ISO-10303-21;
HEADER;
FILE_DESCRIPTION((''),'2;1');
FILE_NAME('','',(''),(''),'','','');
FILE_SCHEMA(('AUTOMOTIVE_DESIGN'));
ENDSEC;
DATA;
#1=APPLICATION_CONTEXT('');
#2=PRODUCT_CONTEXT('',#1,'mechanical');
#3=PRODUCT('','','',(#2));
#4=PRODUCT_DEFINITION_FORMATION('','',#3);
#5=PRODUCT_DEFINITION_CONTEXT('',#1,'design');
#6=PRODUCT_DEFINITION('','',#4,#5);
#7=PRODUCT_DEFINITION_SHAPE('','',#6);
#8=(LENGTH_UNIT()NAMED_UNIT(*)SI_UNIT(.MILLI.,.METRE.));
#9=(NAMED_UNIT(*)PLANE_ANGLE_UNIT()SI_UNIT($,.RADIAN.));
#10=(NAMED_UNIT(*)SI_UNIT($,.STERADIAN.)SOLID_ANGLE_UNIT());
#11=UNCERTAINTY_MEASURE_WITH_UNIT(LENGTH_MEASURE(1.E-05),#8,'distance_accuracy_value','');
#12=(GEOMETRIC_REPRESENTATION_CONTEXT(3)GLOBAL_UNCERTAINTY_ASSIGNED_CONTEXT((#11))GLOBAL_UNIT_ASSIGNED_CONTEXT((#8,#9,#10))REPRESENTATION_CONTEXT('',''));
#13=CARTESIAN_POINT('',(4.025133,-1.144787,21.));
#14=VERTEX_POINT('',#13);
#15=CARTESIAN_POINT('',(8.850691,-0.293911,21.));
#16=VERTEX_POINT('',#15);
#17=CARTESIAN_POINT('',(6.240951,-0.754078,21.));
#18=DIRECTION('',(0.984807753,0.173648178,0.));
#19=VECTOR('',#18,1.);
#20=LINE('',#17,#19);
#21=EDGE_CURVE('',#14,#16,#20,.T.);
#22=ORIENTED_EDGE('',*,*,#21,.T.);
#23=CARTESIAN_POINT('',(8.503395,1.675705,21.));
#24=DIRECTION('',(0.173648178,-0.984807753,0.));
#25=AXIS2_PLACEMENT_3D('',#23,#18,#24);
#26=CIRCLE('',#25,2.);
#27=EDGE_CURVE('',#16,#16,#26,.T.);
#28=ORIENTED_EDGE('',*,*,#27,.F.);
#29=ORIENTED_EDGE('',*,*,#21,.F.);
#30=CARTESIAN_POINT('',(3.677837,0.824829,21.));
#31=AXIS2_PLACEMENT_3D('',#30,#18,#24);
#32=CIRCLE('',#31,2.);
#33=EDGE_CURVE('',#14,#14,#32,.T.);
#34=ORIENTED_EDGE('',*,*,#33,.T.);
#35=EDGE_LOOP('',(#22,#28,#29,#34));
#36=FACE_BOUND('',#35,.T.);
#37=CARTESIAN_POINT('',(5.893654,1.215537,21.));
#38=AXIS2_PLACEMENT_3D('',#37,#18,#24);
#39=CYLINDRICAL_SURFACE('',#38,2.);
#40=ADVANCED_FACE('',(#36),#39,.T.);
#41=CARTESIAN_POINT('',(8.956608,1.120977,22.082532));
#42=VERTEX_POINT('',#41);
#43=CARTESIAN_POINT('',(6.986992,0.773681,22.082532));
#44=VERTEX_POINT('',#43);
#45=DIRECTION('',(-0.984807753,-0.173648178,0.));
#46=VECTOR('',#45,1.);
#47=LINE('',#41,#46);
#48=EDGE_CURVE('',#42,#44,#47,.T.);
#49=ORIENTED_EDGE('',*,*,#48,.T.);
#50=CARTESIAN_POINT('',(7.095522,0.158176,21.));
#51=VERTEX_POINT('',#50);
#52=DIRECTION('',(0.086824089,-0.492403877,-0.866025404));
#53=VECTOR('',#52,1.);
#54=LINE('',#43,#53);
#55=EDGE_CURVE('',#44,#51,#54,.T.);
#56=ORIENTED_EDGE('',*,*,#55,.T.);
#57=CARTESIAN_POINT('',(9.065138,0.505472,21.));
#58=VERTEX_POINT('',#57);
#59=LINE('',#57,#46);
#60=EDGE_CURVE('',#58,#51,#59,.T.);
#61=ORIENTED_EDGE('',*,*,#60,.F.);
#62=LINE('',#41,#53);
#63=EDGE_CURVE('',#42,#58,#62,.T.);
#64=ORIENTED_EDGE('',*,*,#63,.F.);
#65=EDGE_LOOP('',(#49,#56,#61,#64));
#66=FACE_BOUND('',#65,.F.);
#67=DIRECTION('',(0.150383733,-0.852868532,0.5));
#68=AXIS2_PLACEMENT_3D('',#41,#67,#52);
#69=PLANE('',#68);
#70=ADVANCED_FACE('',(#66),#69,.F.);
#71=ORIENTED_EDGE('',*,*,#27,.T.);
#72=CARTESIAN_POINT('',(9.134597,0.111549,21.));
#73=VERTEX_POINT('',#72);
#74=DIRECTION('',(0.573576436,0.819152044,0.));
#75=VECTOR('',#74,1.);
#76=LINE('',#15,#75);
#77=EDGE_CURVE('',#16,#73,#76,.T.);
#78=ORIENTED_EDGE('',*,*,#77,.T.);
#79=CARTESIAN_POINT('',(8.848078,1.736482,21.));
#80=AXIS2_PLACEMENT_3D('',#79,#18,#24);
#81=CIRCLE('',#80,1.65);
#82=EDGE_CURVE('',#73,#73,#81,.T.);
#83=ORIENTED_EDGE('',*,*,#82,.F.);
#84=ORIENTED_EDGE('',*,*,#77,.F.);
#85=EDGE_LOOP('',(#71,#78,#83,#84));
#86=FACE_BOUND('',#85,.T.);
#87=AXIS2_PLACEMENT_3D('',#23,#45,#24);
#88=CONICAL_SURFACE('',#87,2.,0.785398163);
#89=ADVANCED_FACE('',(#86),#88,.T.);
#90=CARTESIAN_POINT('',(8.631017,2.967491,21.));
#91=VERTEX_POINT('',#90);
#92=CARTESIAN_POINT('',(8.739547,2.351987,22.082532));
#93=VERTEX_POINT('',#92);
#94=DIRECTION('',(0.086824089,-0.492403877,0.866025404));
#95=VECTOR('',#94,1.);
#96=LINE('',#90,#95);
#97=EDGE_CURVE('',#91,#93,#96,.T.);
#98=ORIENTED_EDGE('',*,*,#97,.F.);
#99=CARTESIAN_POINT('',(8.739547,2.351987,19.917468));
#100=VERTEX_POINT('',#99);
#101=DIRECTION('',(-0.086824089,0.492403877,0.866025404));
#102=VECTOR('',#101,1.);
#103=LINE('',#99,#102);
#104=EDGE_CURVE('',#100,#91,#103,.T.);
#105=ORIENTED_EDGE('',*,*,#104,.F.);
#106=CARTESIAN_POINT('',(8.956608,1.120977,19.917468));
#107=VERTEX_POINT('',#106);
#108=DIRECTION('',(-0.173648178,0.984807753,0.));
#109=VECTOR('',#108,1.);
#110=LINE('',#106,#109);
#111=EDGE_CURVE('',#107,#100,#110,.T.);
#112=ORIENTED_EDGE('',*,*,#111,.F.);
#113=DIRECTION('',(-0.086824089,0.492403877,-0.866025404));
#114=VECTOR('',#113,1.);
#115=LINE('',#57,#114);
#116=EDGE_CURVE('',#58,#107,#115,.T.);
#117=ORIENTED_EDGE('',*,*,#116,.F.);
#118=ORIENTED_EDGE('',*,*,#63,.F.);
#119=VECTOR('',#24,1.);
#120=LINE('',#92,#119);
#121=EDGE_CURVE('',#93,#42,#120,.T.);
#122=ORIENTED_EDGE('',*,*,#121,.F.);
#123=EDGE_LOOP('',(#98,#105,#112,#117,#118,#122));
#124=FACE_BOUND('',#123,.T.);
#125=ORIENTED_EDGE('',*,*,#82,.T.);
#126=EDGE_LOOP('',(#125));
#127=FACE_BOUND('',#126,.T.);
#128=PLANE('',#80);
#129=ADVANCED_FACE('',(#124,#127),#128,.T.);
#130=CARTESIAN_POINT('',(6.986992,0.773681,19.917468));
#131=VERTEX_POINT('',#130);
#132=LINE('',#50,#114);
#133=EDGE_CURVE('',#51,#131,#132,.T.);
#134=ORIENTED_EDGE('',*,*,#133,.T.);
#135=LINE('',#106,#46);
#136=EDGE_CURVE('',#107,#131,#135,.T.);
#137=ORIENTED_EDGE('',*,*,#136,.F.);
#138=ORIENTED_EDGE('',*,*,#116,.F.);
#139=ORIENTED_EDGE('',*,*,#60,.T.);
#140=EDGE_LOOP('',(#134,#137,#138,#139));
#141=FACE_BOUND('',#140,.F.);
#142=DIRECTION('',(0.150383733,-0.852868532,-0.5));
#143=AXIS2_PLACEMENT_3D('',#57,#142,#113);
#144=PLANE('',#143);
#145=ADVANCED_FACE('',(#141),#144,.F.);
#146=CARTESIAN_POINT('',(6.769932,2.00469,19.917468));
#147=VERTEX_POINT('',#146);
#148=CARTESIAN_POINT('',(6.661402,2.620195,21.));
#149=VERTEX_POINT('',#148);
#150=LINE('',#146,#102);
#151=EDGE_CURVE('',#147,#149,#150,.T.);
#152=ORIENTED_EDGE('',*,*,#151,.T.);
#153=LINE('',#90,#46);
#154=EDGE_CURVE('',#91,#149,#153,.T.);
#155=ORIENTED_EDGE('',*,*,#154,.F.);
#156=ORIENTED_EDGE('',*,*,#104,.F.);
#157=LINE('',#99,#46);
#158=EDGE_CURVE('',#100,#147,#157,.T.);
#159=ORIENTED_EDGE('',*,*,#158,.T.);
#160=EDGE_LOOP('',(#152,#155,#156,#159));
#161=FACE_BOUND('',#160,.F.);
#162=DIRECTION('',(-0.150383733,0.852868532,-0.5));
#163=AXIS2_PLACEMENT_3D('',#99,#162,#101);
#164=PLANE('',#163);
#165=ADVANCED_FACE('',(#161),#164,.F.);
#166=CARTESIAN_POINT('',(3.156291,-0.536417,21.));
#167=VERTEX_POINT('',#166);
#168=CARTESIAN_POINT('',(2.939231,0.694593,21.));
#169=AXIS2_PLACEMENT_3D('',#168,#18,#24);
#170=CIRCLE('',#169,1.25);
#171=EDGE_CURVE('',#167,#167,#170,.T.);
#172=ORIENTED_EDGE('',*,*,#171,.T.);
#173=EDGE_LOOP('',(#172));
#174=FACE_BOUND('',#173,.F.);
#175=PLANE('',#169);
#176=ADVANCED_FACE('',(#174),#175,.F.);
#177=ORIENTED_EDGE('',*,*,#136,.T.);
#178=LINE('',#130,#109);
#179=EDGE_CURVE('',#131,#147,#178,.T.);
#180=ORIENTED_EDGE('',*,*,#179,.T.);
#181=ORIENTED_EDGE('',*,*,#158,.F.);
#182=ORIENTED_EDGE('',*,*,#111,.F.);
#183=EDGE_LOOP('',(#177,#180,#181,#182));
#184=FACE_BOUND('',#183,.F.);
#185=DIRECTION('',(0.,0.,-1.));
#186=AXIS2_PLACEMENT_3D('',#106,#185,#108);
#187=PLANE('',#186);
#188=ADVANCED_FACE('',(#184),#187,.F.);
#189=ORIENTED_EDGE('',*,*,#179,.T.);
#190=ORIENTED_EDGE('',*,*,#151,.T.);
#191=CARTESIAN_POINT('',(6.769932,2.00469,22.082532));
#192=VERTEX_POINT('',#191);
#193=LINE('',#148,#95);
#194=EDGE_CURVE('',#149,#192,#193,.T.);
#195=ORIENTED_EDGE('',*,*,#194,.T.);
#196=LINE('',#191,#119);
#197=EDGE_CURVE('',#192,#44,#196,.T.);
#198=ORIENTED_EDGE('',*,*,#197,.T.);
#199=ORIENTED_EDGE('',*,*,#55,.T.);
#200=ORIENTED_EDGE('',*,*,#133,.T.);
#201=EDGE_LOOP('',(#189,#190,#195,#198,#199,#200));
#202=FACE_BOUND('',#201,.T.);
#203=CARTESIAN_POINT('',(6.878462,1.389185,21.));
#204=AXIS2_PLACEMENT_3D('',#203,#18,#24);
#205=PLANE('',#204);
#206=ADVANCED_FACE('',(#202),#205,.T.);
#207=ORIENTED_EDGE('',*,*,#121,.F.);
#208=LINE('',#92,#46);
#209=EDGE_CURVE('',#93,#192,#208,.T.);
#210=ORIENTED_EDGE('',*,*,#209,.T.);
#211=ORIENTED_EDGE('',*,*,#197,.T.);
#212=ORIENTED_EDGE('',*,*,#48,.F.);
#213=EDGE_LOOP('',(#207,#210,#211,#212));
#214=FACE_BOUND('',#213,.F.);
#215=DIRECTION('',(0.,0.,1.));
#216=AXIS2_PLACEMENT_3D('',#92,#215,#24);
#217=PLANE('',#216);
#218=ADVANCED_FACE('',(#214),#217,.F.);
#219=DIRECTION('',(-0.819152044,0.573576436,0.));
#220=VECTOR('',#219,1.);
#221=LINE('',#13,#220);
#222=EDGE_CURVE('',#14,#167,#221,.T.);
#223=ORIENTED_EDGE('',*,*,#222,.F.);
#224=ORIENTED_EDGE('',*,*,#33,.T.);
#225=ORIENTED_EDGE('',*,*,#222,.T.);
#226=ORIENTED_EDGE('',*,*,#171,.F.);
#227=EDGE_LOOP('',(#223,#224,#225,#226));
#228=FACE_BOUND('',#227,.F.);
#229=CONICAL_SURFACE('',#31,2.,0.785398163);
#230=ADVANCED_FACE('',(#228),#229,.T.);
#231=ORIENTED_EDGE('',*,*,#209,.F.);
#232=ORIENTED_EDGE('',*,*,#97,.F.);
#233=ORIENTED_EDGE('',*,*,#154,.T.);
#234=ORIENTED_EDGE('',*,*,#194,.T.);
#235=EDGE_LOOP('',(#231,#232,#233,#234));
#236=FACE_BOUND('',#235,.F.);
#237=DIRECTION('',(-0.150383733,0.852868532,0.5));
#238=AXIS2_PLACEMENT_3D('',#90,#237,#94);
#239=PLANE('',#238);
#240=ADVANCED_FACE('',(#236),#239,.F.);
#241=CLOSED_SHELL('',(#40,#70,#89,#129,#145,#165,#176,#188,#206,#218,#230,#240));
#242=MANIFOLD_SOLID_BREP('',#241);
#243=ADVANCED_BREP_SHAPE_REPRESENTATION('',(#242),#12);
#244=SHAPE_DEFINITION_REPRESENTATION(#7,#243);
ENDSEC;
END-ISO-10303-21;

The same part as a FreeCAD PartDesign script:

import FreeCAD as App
import Part
import Sketcher
Q = App.Units.Quantity


def edges_at(feature, points):
    """Names of the edges that pass closest to the given points."""
    edges = feature.Shape.Edges
    near = lambda p: min(range(len(edges)), key=lambda i: edges[i].distToShape(Part.Vertex(*p))[0])
    return sorted({f"Edge{near(p) + 1}" for p in points})


def add_polygon(sketch, points):
    """Adds a closed chain of lines whose ends are joined by coincident constraints."""
    first, n = sketch.GeometryCount, len(points)
    for a, b in zip(points, points[1:] + points[:1]):
        sketch.addGeometry(Part.LineSegment(App.Vector(*a, 0), App.Vector(*b, 0)), False)
    for i in range(n):
        sketch.addConstraint(Sketcher.Constraint("Coincident", first + i, 2, first + (i + 1) % n, 1))

doc = App.newDocument("Part")
params = doc.addObject("Spreadsheet::Sheet", "Params")
for row, (alias, value) in enumerate([
    ("sketch1_width", "2 mm"),
    ("sketch1_height", "6 mm"),
    ("revolution_angle", "360 deg"),
    ("sketch2_width", "1.25 mm"),
    ("pocket1_length", "2 mm"),
    ("chamfer_size", "0.35 mm"),
    ("chamfer2_size", "0.75 mm"),
], start=1):
    params.set(f"A{row}", alias)
    params.set(f"B{row}", "=" + value)
    params.setAlias(f"B{row}", alias)

body = doc.addObject("PartDesign::Body", "Body")

# Sketch on XZ plane
sketch1 = doc.addObject("Sketcher::SketchObject", "Sketch")
body.addObject(sketch1)
sketch1.AttachmentSupport = (doc.XZ_Plane, [""])
sketch1.MapMode = "FlatFace"
add_polygon(sketch1, [(-2, 6), (-2, 0), (0, 0), (0, 6)])  # lines 0-3
sketch1.addConstraint([
    Sketcher.Constraint("Vertical", 0),
    Sketcher.Constraint("Horizontal", 1),
    Sketcher.Constraint("Vertical", 2),
    Sketcher.Constraint("Horizontal", 3),
    Sketcher.Constraint("Coincident", 1, 2, -1, 1),
    Sketcher.Constraint("DistanceX", 1, 1, 1, 2, Q("2 mm")),
    Sketcher.Constraint("DistanceY", 0, 2, 0, 1, Q("6 mm")),
])
sketch1.setExpression("Constraints[9]", "Params.sketch1_width")
sketch1.setExpression("Constraints[10]", "Params.sketch1_height")
revolution = doc.addObject("PartDesign::Revolution", "Revolution")
body.addObject(revolution)
revolution.Profile = sketch1
revolution.ReferenceAxis = (sketch1, ["V_Axis"])
revolution.setExpression("Angle", "Params.revolution_angle")

# Sketch on XY plane
sketch2 = doc.addObject("Sketcher::SketchObject", "Sketch001")
body.addObject(sketch2)
sketch2.AttachmentSupport = (doc.XY_Plane, [""])
sketch2.MapMode = "FlatFace"
sketch2.AttachmentOffset = App.Placement(App.Vector(0, 0, 6), App.Rotation())
add_polygon(sketch2, [(0.6, 1.1), (-0.6, 1.1), (-1.2, 0), (-0.6, -1.1), (0.6, -1.1), (1.2, 0)])  # lines 0-5
sketch2.addConstraint([
    Sketcher.Constraint("Horizontal", 0),
    Sketcher.Constraint("Horizontal", 3),
    Sketcher.Constraint("Symmetric", 0, 2, 3, 2, -1, 1),
    Sketcher.Constraint("Symmetric", 1, 2, 4, 2, -1, 1),
    Sketcher.Constraint("PointOnObject", 1, 2, -1),
    Sketcher.Constraint("Parallel", 2, 5),
    Sketcher.Constraint("Vertical", 0, 2, 2, 2),
    Sketcher.Constraint("Angle", 1, Q("-120 deg")),
    Sketcher.Constraint("DistanceX", 0, 2, 0, 1, Q("1.25 mm")),
    Sketcher.Constraint("DistanceX", 1, 2, 4, 2, Q("2.5 mm")),
])
sketch2.setExpression("Constraints[14]", "Params.sketch2_width")
pocket1 = doc.addObject("PartDesign::Pocket", "Pocket")
body.addObject(pocket1)
pocket1.Profile = sketch2
pocket1.setExpression("Length", "Params.pocket1_length")
doc.recompute()

chamfer = doc.addObject("PartDesign::Chamfer", "Chamfer")
body.addObject(chamfer)
chamfer.Base = (pocket1, edges_at(pocket1, [(2, 0, 6)]))
chamfer.setExpression("Size", "Params.chamfer_size")
doc.recompute()

chamfer2 = doc.addObject("PartDesign::Chamfer", "Chamfer001")
body.addObject(chamfer2)
chamfer2.Base = (chamfer, edges_at(chamfer, [(2, 0, 0)]))
chamfer2.setExpression("Size", "Params.chamfer2_size")
body2 = doc.addObject("PartDesign::Body", "Body001")
doc.recompute()

body.Placement = App.Placement(App.Vector(0, -3, 4), App.Rotation(App.Vector(1, 0, 0), 90))
boolean = doc.addObject("PartDesign::Boolean", "Boolean")
body2.addObject(boolean)
boolean.Type = "Fuse"
boolean.addObjects([body])
body3 = doc.addObject("PartDesign::Body", "Body002")
doc.recompute()

body2.Placement = App.Placement(App.Vector(0, -1, 0), App.Rotation(App.Vector(0, 0, 1), 0))
boolean2 = doc.addObject("PartDesign::Boolean", "Boolean001")
body3.addObject(boolean2)
boolean2.Type = "Fuse"
boolean2.addObjects([body2])
body4 = doc.addObject("PartDesign::Body", "Body003")
doc.recompute()

body3.Placement = App.Placement(App.Vector(-0.173648, 0.984808, 17), App.Rotation(App.Vector(0, 0, 1), 10))
boolean3 = doc.addObject("PartDesign::Boolean", "Boolean002")
body4.addObject(boolean3)
boolean3.Type = "Fuse"
boolean3.addObjects([body3])
body5 = doc.addObject("PartDesign::Body", "Body004")
doc.recompute()

body4.Placement = App.Placement(App.Vector(0.173648, -0.984808, 0), App.Rotation(App.Vector(0, 0, 1), 0))
boolean4 = doc.addObject("PartDesign::Boolean", "Boolean003")
body5.addObject(boolean4)
boolean4.Type = "Fuse"
boolean4.addObjects([body4])
body6 = doc.addObject("PartDesign::Body", "Body005")
doc.recompute()

body5.Placement = App.Placement(App.Vector(-1, 0, 0), App.Rotation(App.Vector(0, 0, 1), 90))
boolean5 = doc.addObject("PartDesign::Boolean", "Boolean004")
body6.addObject(boolean5)
boolean5.Type = "Fuse"
boolean5.addObjects([body5])

doc.recompute()
